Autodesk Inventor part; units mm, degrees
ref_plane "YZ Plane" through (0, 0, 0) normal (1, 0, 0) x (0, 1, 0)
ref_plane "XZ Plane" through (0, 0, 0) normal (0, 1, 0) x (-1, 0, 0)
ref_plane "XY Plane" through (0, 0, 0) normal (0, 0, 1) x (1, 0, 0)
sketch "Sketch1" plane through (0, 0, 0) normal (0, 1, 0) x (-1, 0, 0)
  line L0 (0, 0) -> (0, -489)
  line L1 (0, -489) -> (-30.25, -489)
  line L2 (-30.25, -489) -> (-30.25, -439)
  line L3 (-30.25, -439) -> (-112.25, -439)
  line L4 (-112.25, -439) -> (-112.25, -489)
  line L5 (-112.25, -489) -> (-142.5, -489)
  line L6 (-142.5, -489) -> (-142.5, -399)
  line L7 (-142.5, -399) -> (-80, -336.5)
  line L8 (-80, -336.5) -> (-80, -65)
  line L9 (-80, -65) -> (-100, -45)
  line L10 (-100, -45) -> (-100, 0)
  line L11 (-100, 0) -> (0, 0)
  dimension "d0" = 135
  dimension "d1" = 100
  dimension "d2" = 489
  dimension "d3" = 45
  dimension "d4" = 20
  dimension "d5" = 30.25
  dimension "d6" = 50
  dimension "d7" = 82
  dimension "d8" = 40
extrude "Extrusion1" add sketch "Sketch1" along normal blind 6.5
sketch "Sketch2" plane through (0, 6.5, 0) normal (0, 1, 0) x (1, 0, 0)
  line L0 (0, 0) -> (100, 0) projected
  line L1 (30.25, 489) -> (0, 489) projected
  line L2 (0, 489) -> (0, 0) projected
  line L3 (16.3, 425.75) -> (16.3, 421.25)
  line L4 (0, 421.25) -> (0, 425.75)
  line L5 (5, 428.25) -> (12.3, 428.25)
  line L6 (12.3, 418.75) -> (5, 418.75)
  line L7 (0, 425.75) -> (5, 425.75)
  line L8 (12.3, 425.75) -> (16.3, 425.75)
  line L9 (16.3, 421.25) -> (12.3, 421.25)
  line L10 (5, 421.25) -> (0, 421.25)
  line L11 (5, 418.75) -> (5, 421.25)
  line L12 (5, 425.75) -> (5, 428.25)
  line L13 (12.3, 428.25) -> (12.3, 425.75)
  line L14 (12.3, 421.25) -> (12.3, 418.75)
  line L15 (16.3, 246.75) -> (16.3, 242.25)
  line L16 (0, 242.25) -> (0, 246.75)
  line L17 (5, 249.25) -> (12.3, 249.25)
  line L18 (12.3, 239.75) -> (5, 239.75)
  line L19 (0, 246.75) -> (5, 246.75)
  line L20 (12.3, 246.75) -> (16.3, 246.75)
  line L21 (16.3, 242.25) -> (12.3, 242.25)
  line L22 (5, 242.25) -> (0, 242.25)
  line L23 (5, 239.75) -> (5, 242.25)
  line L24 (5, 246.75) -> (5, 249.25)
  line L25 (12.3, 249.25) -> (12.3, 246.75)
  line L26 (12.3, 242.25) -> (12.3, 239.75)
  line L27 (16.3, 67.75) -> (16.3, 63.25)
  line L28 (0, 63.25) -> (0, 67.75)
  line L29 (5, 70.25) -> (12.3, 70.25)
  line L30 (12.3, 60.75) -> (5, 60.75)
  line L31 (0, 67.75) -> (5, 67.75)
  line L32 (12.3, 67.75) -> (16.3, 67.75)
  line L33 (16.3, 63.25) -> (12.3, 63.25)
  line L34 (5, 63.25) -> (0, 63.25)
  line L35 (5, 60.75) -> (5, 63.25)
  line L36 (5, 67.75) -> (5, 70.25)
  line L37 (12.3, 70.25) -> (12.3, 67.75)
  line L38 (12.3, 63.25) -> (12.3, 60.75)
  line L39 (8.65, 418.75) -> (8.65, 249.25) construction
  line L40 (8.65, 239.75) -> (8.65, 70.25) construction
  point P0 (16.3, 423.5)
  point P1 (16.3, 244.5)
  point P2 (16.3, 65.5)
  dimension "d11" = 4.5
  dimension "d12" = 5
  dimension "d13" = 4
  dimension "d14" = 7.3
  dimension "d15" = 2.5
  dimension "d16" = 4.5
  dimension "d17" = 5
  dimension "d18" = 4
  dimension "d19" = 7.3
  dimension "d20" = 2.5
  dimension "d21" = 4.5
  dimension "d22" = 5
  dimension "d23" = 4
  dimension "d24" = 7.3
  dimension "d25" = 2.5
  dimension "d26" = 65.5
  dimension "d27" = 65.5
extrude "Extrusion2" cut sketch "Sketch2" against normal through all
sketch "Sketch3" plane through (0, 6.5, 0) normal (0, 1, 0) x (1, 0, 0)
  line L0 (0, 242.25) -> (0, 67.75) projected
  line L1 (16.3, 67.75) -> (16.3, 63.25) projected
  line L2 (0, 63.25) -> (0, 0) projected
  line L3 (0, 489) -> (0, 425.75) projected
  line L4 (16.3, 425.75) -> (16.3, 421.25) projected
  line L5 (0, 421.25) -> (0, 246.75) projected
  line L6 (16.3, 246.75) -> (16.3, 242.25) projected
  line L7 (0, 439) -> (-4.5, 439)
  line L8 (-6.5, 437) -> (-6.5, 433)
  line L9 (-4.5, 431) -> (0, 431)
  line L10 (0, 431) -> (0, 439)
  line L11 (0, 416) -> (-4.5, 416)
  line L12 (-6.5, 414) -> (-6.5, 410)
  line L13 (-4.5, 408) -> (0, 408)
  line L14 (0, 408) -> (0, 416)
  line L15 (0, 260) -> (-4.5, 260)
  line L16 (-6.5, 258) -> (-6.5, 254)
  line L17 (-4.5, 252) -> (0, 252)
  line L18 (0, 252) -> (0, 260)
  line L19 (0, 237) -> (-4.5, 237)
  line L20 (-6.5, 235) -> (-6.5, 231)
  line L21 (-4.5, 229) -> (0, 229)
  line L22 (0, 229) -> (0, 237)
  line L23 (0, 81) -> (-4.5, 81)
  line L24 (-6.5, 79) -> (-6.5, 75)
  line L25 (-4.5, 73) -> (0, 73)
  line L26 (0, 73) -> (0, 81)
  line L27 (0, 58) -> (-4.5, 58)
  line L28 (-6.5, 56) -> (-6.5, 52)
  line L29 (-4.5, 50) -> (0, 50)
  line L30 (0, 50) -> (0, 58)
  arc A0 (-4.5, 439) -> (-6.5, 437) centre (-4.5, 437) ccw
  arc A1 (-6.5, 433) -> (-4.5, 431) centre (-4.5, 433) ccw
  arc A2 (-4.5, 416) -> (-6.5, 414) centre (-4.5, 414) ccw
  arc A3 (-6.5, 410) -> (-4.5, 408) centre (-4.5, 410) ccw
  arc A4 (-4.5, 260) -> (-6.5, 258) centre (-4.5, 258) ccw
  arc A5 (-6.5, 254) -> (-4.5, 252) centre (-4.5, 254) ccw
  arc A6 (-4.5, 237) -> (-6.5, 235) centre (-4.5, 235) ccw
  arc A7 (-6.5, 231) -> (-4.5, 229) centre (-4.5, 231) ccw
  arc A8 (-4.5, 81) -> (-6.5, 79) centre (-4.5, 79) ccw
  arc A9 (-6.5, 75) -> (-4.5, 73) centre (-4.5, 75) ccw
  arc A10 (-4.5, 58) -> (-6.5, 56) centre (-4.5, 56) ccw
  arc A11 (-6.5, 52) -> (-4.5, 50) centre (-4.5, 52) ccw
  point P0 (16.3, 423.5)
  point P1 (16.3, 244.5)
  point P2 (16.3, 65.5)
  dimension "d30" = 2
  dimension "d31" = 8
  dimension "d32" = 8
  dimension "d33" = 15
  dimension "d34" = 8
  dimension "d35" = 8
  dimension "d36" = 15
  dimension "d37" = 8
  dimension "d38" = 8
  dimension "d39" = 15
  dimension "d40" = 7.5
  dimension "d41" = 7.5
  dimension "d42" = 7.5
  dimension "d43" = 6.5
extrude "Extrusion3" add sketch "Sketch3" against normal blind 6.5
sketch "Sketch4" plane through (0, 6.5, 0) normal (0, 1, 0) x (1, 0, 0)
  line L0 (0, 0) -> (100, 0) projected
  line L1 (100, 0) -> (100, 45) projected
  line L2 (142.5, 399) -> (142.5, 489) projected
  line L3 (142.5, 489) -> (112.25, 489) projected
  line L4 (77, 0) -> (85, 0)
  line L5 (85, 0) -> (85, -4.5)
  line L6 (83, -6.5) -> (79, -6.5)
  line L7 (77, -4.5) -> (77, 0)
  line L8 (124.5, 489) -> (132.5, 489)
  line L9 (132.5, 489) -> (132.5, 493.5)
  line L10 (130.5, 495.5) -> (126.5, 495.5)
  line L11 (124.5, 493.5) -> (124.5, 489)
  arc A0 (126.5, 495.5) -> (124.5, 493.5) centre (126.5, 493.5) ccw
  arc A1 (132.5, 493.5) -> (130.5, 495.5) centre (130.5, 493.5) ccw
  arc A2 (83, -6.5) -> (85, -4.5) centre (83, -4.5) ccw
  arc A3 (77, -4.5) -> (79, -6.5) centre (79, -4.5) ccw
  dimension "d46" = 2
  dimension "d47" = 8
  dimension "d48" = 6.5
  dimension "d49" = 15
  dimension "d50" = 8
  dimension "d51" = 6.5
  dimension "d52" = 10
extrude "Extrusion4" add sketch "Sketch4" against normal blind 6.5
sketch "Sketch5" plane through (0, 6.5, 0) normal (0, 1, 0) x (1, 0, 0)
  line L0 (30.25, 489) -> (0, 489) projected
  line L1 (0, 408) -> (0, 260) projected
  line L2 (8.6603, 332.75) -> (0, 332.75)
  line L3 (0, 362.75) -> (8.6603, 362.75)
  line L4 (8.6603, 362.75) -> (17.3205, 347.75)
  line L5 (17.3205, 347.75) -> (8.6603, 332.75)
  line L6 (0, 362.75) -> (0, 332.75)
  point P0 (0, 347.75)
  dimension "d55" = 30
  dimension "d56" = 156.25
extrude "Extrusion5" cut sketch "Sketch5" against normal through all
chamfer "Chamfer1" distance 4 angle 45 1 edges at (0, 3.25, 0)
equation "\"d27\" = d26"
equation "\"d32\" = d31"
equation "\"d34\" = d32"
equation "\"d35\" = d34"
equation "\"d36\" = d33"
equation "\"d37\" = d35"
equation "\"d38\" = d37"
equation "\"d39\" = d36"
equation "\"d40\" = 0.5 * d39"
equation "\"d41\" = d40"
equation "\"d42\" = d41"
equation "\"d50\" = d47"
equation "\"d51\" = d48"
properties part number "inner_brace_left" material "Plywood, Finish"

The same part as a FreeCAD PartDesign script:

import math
import FreeCAD as App
import Part
import Sketcher
Q = App.Units.Quantity


def edges_at(feature, points):
    """Names of the edges that pass closest to the given points."""
    edges = feature.Shape.Edges
    near = lambda p: min(range(len(edges)), key=lambda i: edges[i].distToShape(Part.Vertex(*p))[0])
    return sorted({f"Edge{near(p) + 1}" for p in points})


def add_polygon(sketch, points):
    """Adds a closed chain of lines whose ends are joined by coincident constraints."""
    first, n = sketch.GeometryCount, len(points)
    for a, b in zip(points, points[1:] + points[:1]):
        sketch.addGeometry(Part.LineSegment(App.Vector(*a, 0), App.Vector(*b, 0)), False)
    for i in range(n):
        sketch.addConstraint(Sketcher.Constraint("Coincident", first + i, 2, first + (i + 1) % n, 1))

doc = App.newDocument("Part")
body = doc.addObject("PartDesign::Body", "Body")

# Sketch on XZ plane
sketch1 = doc.addObject("Sketcher::SketchObject", "Sketch")
body.addObject(sketch1)
sketch1.AttachmentSupport = (doc.XZ_Plane, [""])
sketch1.MapMode = "FlatFace"
add_polygon(sketch1, [(0, -489), (0, 0), (100, 0), (100, -45), (80, -65), (80, -336), (142, -399), (142, -489), (112, -489), (112, -439), (30, -439), (30, -489)])  # lines 0-11
sketch1.addConstraint([
    Sketcher.Constraint("Vertical", 0),
    Sketcher.Constraint("Horizontal", 1),
    Sketcher.Constraint("Vertical", 2),
    Sketcher.Constraint("Vertical", 4),
    Sketcher.Constraint("Vertical", 6),
    Sketcher.Constraint("Horizontal", 7),
    Sketcher.Constraint("Vertical", 8),
    Sketcher.Constraint("Horizontal", 9),
    Sketcher.Constraint("Vertical", 10),
    Sketcher.Constraint("Horizontal", 11),
    Sketcher.Constraint("Coincident", 0, 2, -1, 1),
    Sketcher.Constraint("Perpendicular", 3, 5),
    Sketcher.Constraint("Horizontal", 7, 2, 10, 2),
    Sketcher.Constraint("Equal", 7, 11),
    Sketcher.Constraint("DistanceX", 1, 1, 1, 2, 100.0),
    Sketcher.Constraint("DistanceX", 9, 2, 9, 1, 82.0),
    Sketcher.Constraint("DistanceY", 0, 1, 0, 2, 489.0),
    Sketcher.Constraint("DistanceY", 2, 2, 2, 1, 45.0),
    Sketcher.Constraint("DistanceY", 8, 1, 8, 2, 50.0),
    Sketcher.Constraint("Angle", 3, Q("-135 deg")),
    Sketcher.Constraint("DistanceX", 3, 2, 2, 2, 20.0),
    Sketcher.Constraint("DistanceY", 8, 2, 5, 2, 40.0),
    Sketcher.Constraint("DistanceX", 7, 2, 7, 1, 30.25),
])
pad1 = doc.addObject("PartDesign::Pad", "Pad")
body.addObject(pad1)
pad1.Profile = sketch1
pad1.Length = 6.5
pad1.Reversed = True

# Sketch on XZ plane
sketch2 = doc.addObject("Sketcher::SketchObject", "Sketch001")
body.addObject(sketch2)
sketch2.AttachmentSupport = (doc.XZ_Plane, [""])
sketch2.MapMode = "FlatFace"
sketch2.AttachmentOffset = App.Placement(App.Vector(0, 0, -6.5), App.Rotation())
add_polygon(sketch2, [(5, -425.8), (0, -425.8), (0, -421.2), (5, -421.2), (5, -418.8), (12.3, -418.8), (12.3, -421.2), (16.3, -421.2), (16.3, -425.8), (12.3, -425.8), (12.3, -428.2), (5, -428.2)])  # lines 0-11
add_polygon(sketch2, [(5, -67.8), (0, -67.8), (0, -63.2), (5, -63.2), (5, -60.8), (12.3, -60.8), (12.3, -63.2), (16.3, -63.2), (16.3, -67.8), (12.3, -67.8), (12.3, -70.2), (5, -70.2)])  # lines 12-23
add_polygon(sketch2, [(5, -246.8), (0, -246.8), (0, -242.2), (5, -242.2), (5, -239.8), (12.3, -239.8), (12.3, -242.2), (16.3, -242.2), (16.3, -246.8), (12.3, -246.8), (12.3, -249.2), (5, -249.2)])  # lines 24-35
sketch2.addConstraint([
    Sketcher.Constraint("Horizontal", 0),
    Sketcher.Constraint("Vertical", 1),
    Sketcher.Constraint("Horizontal", 2),
    Sketcher.Constraint("Vertical", 3),
    Sketcher.Constraint("Horizontal", 4),
    Sketcher.Constraint("Vertical", 5),
    Sketcher.Constraint("Horizontal", 6),
    Sketcher.Constraint("Vertical", 7),
    Sketcher.Constraint("Horizontal", 8),
    Sketcher.Constraint("Vertical", 9),
    Sketcher.Constraint("Horizontal", 10),
    Sketcher.Constraint("Vertical", 11),
    Sketcher.Constraint("Horizontal", 12),
    Sketcher.Constraint("Vertical", 13),
    Sketcher.Constraint("Horizontal", 14),
    Sketcher.Constraint("Vertical", 15),
    Sketcher.Constraint("Horizontal", 16),
    Sketcher.Constraint("Vertical", 17),
    Sketcher.Constraint("Horizontal", 18),
    Sketcher.Constraint("Vertical", 19),
    Sketcher.Constraint("Horizontal", 20),
    Sketcher.Constraint("Vertical", 21),
    Sketcher.Constraint("Horizontal", 22),
    Sketcher.Constraint("Vertical", 23),
    Sketcher.Constraint("Horizontal", 24),
    Sketcher.Constraint("Vertical", 25),
    Sketcher.Constraint("Horizontal", 26),
    Sketcher.Constraint("Vertical", 27),
    Sketcher.Constraint("Horizontal", 28),
    Sketcher.Constraint("Vertical", 29),
    Sketcher.Constraint("Horizontal", 30),
    Sketcher.Constraint("Vertical", 31),
    Sketcher.Constraint("Horizontal", 32),
    Sketcher.Constraint("Vertical", 33),
    Sketcher.Constraint("Horizontal", 34),
    Sketcher.Constraint("Vertical", 35),
    Sketcher.Constraint("PointOnObject", 0, 2, -2),
    Sketcher.Constraint("PointOnObject", 12, 2, -2),
    Sketcher.Constraint("PointOnObject", 24, 2, -2),
    Sketcher.Constraint("Horizontal", 2, 2, 5, 2),
    Sketcher.Constraint("Horizontal", 0, 2, 7, 2),
    Sketcher.Constraint("Horizontal", 14, 2, 17, 2),
    Sketcher.Constraint("Horizontal", 12, 2, 19, 2),
    Sketcher.Constraint("Horizontal", 26, 2, 29, 2),
    Sketcher.Constraint("Horizontal", 24, 2, 31, 2),
    Sketcher.Constraint("Vertical", 5, 2, 8, 2),
    Sketcher.Constraint("Vertical", 3, 2, 10, 2),
    Sketcher.Constraint("Vertical", 11, 2, 14, 2),
    Sketcher.Constraint("Vertical", 9, 2, 16, 2),
    Sketcher.Constraint("Vertical", 7, 2, 18, 2),
    Sketcher.Constraint("Vertical", 17, 2, 20, 2),
    Sketcher.Constraint("Vertical", 15, 2, 22, 2),
    Sketcher.Constraint("Vertical", 23, 2, 26, 2),
    Sketcher.Constraint("Vertical", 21, 2, 28, 2),
    Sketcher.Constraint("Vertical", 19, 2, 30, 2),
    Sketcher.Constraint("Vertical", 29, 2, 32, 2),
    Sketcher.Constraint("Vertical", 27, 2, 34, 2),
    Sketcher.Constraint("Equal", 5, 9),
    Sketcher.Constraint("Equal", 7, 13),
    Sketcher.Constraint("Equal", 11, 15),
    Sketcher.Constraint("Equal", 17, 21),
    Sketcher.Constraint("Equal", 19, 25),
    Sketcher.Constraint("Equal", 23, 27),
    Sketcher.Constraint("Equal", 29, 33),
    Sketcher.Constraint("DistanceX", 0, 2, 0, 1, 5.0),
    Sketcher.Constraint("DistanceX", 6, 1, 6, 2, 4.0),
    Sketcher.Constraint("DistanceX", 4, 1, 4, 2, 7.3),
    Sketcher.Constraint("DistanceY", 1, 1, 1, 2, 4.5),
    Sketcher.Constraint("DistanceY", 3, 1, 3, 2, 2.5),
    Sketcher.Constraint("DistanceY", 3, 2, 12, 2, 351.0),
    Sketcher.Constraint("DistanceY", 3, 2, 24, 2, 172.0),
    Sketcher.Constraint("DistanceY", 0, 2, -1, 1, 425.75),
])
pocket1 = doc.addObject("PartDesign::Pocket", "Pocket")
body.addObject(pocket1)
pocket1.Profile = sketch2
pocket1.Type = "ThroughAll"
pocket1.Reversed = True

# Sketch on XZ plane
sketch3 = doc.addObject("Sketcher::SketchObject", "Sketch002")
body.addObject(sketch3)
sketch3.AttachmentSupport = (doc.XZ_Plane, [""])
sketch3.MapMode = "FlatFace"
sketch3.AttachmentOffset = App.Placement(App.Vector(0, 0, -6.5), App.Rotation())
sketch3.addGeometry([
    Part.LineSegment(App.Vector(0, -73, 0), App.Vector(0, -81, 0)),  # 0
    Part.LineSegment(App.Vector(0, -81, 0), App.Vector(-4.5, -81, 0)),  # 1
    Part.ArcOfCircle(Part.Circle(App.Vector(-4.5, -79, 0), App.Vector(0, 0, 1), 2), math.radians(180), math.radians(270)),  # 2
    Part.LineSegment(App.Vector(-6.5, -79, 0), App.Vector(-6.5, -75, 0)),  # 3
    Part.ArcOfCircle(Part.Circle(App.Vector(-4.5, -75, 0), App.Vector(0, 0, 1), 2), math.radians(90), math.radians(180)),  # 4
    Part.LineSegment(App.Vector(-4.5, -73, 0), App.Vector(0, -73, 0)),  # 5
    Part.LineSegment(App.Vector(0, -229, 0), App.Vector(0, -237, 0)),  # 6
    Part.LineSegment(App.Vector(0, -237, 0), App.Vector(-4.5, -237, 0)),  # 7
    Part.ArcOfCircle(Part.Circle(App.Vector(-4.5, -235, 0), App.Vector(0, 0, 1), 2), math.radians(180), math.radians(270)),  # 8
    Part.LineSegment(App.Vector(-6.5, -235, 0), App.Vector(-6.5, -231, 0)),  # 9
    Part.ArcOfCircle(Part.Circle(App.Vector(-4.5, -231, 0), App.Vector(0, 0, 1), 2), math.radians(90), math.radians(180)),  # 10
    Part.LineSegment(App.Vector(-4.5, -229, 0), App.Vector(0, -229, 0)),  # 11
    Part.LineSegment(App.Vector(0, -50, 0), App.Vector(0, -58, 0)),  # 12
    Part.LineSegment(App.Vector(0, -58, 0), App.Vector(-4.5, -58, 0)),  # 13
    Part.ArcOfCircle(Part.Circle(App.Vector(-4.5, -56, 0), App.Vector(0, 0, 1), 2), math.radians(180), math.radians(270)),  # 14
    Part.LineSegment(App.Vector(-6.5, -56, 0), App.Vector(-6.5, -52, 0)),  # 15
    Part.ArcOfCircle(Part.Circle(App.Vector(-4.5, -52, 0), App.Vector(0, 0, 1), 2), math.radians(90), math.radians(180)),  # 16
    Part.LineSegment(App.Vector(-4.5, -50, 0), App.Vector(0, -50, 0)),  # 17
    Part.LineSegment(App.Vector(0, -431, 0), App.Vector(0, -439, 0)),  # 18
    Part.LineSegment(App.Vector(0, -439, 0), App.Vector(-4.5, -439, 0)),  # 19
    Part.ArcOfCircle(Part.Circle(App.Vector(-4.5, -437, 0), App.Vector(0, 0, 1), 2), math.radians(180), math.radians(270)),  # 20
    Part.LineSegment(App.Vector(-6.5, -437, 0), App.Vector(-6.5, -433, 0)),  # 21
    Part.ArcOfCircle(Part.Circle(App.Vector(-4.5, -433, 0), App.Vector(0, 0, 1), 2), math.radians(90), math.radians(180)),  # 22
    Part.LineSegment(App.Vector(-4.5, -431, 0), App.Vector(0, -431, 0)),  # 23
    Part.LineSegment(App.Vector(0, -252, 0), App.Vector(0, -260, 0)),  # 24
    Part.LineSegment(App.Vector(0, -260, 0), App.Vector(-4.5, -260, 0)),  # 25
    Part.ArcOfCircle(Part.Circle(App.Vector(-4.5, -258, 0), App.Vector(0, 0, 1), 2), math.radians(180), math.radians(270)),  # 26
    Part.LineSegment(App.Vector(-6.5, -258, 0), App.Vector(-6.5, -254, 0)),  # 27
    Part.ArcOfCircle(Part.Circle(App.Vector(-4.5, -254, 0), App.Vector(0, 0, 1), 2), math.radians(90), math.radians(180)),  # 28
    Part.LineSegment(App.Vector(-4.5, -252, 0), App.Vector(0, -252, 0)),  # 29
    Part.LineSegment(App.Vector(0, -408, 0), App.Vector(0, -416, 0)),  # 30
    Part.LineSegment(App.Vector(0, -416, 0), App.Vector(-4.5, -416, 0)),  # 31
    Part.ArcOfCircle(Part.Circle(App.Vector(-4.5, -414, 0), App.Vector(0, 0, 1), 2), math.radians(180), math.radians(270)),  # 32
    Part.LineSegment(App.Vector(-6.5, -414, 0), App.Vector(-6.5, -410, 0)),  # 33
    Part.ArcOfCircle(Part.Circle(App.Vector(-4.5, -410, 0), App.Vector(0, 0, 1), 2), math.radians(90), math.radians(180)),  # 34
    Part.LineSegment(App.Vector(-4.5, -408, 0), App.Vector(0, -408, 0)),  # 35
], False)
sketch3.addConstraint([
    Sketcher.Constraint("Coincident", 0, 2, 1, 1),
    Sketcher.Constraint("Tangent", 1, 2, 2, 2),
    Sketcher.Constraint("Tangent", 2, 1, 3, 1),
    Sketcher.Constraint("Tangent", 3, 2, 4, 2),
    Sketcher.Constraint("Tangent", 4, 1, 5, 1),
    Sketcher.Constraint("Coincident", 5, 2, 0, 1),
    Sketcher.Constraint("Coincident", 6, 2, 7, 1),
    Sketcher.Constraint("Tangent", 7, 2, 8, 2),
    Sketcher.Constraint("Tangent", 8, 1, 9, 1),
    Sketcher.Constraint("Tangent", 9, 2, 10, 2),
    Sketcher.Constraint("Tangent", 10, 1, 11, 1),
    Sketcher.Constraint("Coincident", 11, 2, 6, 1),
    Sketcher.Constraint("Coincident", 12, 2, 13, 1),
    Sketcher.Constraint("Tangent", 13, 2, 14, 2),
    Sketcher.Constraint("Tangent", 14, 1, 15, 1),
    Sketcher.Constraint("Tangent", 15, 2, 16, 2),
    Sketcher.Constraint("Tangent", 16, 1, 17, 1),
    Sketcher.Constraint("Coincident", 17, 2, 12, 1),
    Sketcher.Constraint("Coincident", 18, 2, 19, 1),
    Sketcher.Constraint("Tangent", 19, 2, 20, 2),
    Sketcher.Constraint("Tangent", 20, 1, 21, 1),
    Sketcher.Constraint("Tangent", 21, 2, 22, 2),
    Sketcher.Constraint("Tangent", 22, 1, 23, 1),
    Sketcher.Constraint("Coincident", 23, 2, 18, 1),
    Sketcher.Constraint("Coincident", 24, 2, 25, 1),
    Sketcher.Constraint("Tangent", 25, 2, 26, 2),
    Sketcher.Constraint("Tangent", 26, 1, 27, 1),
    Sketcher.Constraint("Tangent", 27, 2, 28, 2),
    Sketcher.Constraint("Tangent", 28, 1, 29, 1),
    Sketcher.Constraint("Coincident", 29, 2, 24, 1),
    Sketcher.Constraint("Coincident", 30, 2, 31, 1),
    Sketcher.Constraint("Tangent", 31, 2, 32, 2),
    Sketcher.Constraint("Tangent", 32, 1, 33, 1),
    Sketcher.Constraint("Tangent", 33, 2, 34, 2),
    Sketcher.Constraint("Tangent", 34, 1, 35, 1),
    Sketcher.Constraint("Coincident", 35, 2, 30, 1),
    Sketcher.Constraint("Vertical", 0),
    Sketcher.Constraint("Horizontal", 1),
    Sketcher.Constraint("Vertical", 3),
    Sketcher.Constraint("Horizontal", 5),
    Sketcher.Constraint("Vertical", 6),
    Sketcher.Constraint("Horizontal", 7),
    Sketcher.Constraint("Vertical", 9),
    Sketcher.Constraint("Horizontal", 11),
    Sketcher.Constraint("Vertical", 12),
    Sketcher.Constraint("Horizontal", 13),
    Sketcher.Constraint("Vertical", 15),
    Sketcher.Constraint("Horizontal", 17),
    Sketcher.Constraint("Vertical", 18),
    Sketcher.Constraint("Horizontal", 19),
    Sketcher.Constraint("Vertical", 21),
    Sketcher.Constraint("Horizontal", 23),
    Sketcher.Constraint("Vertical", 24),
    Sketcher.Constraint("Horizontal", 25),
    Sketcher.Constraint("Vertical", 27),
    Sketcher.Constraint("Horizontal", 29),
    Sketcher.Constraint("Vertical", 30),
    Sketcher.Constraint("Horizontal", 31),
    Sketcher.Constraint("Vertical", 33),
    Sketcher.Constraint("Horizontal", 35),
    Sketcher.Constraint("Equal", 2, 4),
    Sketcher.Constraint("Equal", 4, 8),
    Sketcher.Constraint("Equal", 8, 10),
    Sketcher.Constraint("Equal", 10, 14),
    Sketcher.Constraint("Equal", 14, 16),
    Sketcher.Constraint("Equal", 16, 20),
    Sketcher.Constraint("Equal", 20, 22),
    Sketcher.Constraint("Equal", 22, 26),
    Sketcher.Constraint("Equal", 26, 28),
    Sketcher.Constraint("Equal", 28, 32),
    Sketcher.Constraint("Equal", 32, 34),
    Sketcher.Constraint("PointOnObject", 0, 2, -2),
    Sketcher.Constraint("PointOnObject", 6, 2, -2),
    Sketcher.Constraint("PointOnObject", 12, 2, -2),
    Sketcher.Constraint("PointOnObject", 18, 2, -2),
    Sketcher.Constraint("PointOnObject", 24, 2, -2),
    Sketcher.Constraint("PointOnObject", 30, 2, -2),
    Sketcher.Constraint("Vertical", 4, 3, 8, 3),
    Sketcher.Constraint("Vertical", 10, 3, 14, 3),
    Sketcher.Constraint("Vertical", 16, 3, 20, 3),
    Sketcher.Constraint("Vertical", 22, 3, 26, 3),
    Sketcher.Constraint("Vertical", 28, 3, 32, 3),
    Sketcher.Constraint("Equal", 0, 6),
    Sketcher.Constraint("Equal", 6, 12),
    Sketcher.Constraint("Equal", 12, 18),
    Sketcher.Constraint("Equal", 18, 24),
    Sketcher.Constraint("Equal", 24, 30),
    Sketcher.Constraint("Radius", 2, 2.0),
    Sketcher.Constraint("DistanceY", 0, 2, 0, 1, 8.0),
    Sketcher.Constraint("DistanceY", 5, 2, 12, 2, 15.0),
    Sketcher.Constraint("DistanceY", 23, 2, 30, 2, 15.0),
    Sketcher.Constraint("DistanceX", 2, 1, -1, 1, 6.5),
    Sketcher.Constraint("DistanceY", 2, 3, -1, 1, 79.0),
    Sketcher.Constraint("DistanceY", 8, 3, -1, 1, 235.0),
    Sketcher.Constraint("DistanceY", 20, 3, -1, 1, 437.0),
    Sketcher.Constraint("DistanceY", 26, 3, -1, 1, 258.0),
])
pad2 = doc.addObject("PartDesign::Pad", "Pad001")
body.addObject(pad2)
pad2.Profile = sketch3
pad2.Length = 6.5

# Sketch on XZ plane
sketch4 = doc.addObject("Sketcher::SketchObject", "Sketch003")
body.addObject(sketch4)
sketch4.AttachmentSupport = (doc.XZ_Plane, [""])
sketch4.MapMode = "FlatFace"
sketch4.AttachmentOffset = App.Placement(App.Vector(0, 0, -6.5), App.Rotation())
sketch4.addGeometry([
    Part.LineSegment(App.Vector(85, 0, 0), App.Vector(77, 0, 0)),  # 0
    Part.LineSegment(App.Vector(77, 0, 0), App.Vector(77, 4.5, 0)),  # 1
    Part.ArcOfCircle(Part.Circle(App.Vector(79, 4.5, 0), App.Vector(0, 0, 1), 2), math.radians(90), math.radians(180)),  # 2
    Part.LineSegment(App.Vector(79, 6.5, 0), App.Vector(83, 6.5, 0)),  # 3
    Part.ArcOfCircle(Part.Circle(App.Vector(83, 4.5, 0), App.Vector(0, 0, 1), 2), math.radians(0), math.radians(90)),  # 4
    Part.LineSegment(App.Vector(85, 4.5, 0), App.Vector(85, 0, 0)),  # 5
    Part.LineSegment(App.Vector(124.5, -489, 0), App.Vector(132.5, -489, 0)),  # 6
    Part.LineSegment(App.Vector(132.5, -489, 0), App.Vector(132.5, -493.5, 0)),  # 7
    Part.ArcOfCircle(Part.Circle(App.Vector(130.5, -493.5, 0), App.Vector(0, 0, 1), 2), math.radians(-90), math.radians(0)),  # 8
    Part.LineSegment(App.Vector(130.5, -495.5, 0), App.Vector(126.5, -495.5, 0)),  # 9
    Part.ArcOfCircle(Part.Circle(App.Vector(126.5, -493.5, 0), App.Vector(0, 0, 1), 2), math.radians(180), math.radians(270)),  # 10
    Part.LineSegment(App.Vector(124.5, -493.5, 0), App.Vector(124.5, -489, 0)),  # 11
], False)
sketch4.addConstraint([
    Sketcher.Constraint("Coincident", 0, 2, 1, 1),
    Sketcher.Constraint("Tangent", 1, 2, 2, 2),
    Sketcher.Constraint("Tangent", 2, 1, 3, 1),
    Sketcher.Constraint("Tangent", 3, 2, 4, 2),
    Sketcher.Constraint("Tangent", 4, 1, 5, 1),
    Sketcher.Constraint("Coincident", 5, 2, 0, 1),
    Sketcher.Constraint("Coincident", 6, 2, 7, 1),
    Sketcher.Constraint("Tangent", 7, 2, 8, 2),
    Sketcher.Constraint("Tangent", 8, 1, 9, 1),
    Sketcher.Constraint("Tangent", 9, 2, 10, 2),
    Sketcher.Constraint("Tangent", 10, 1, 11, 1),
    Sketcher.Constraint("Coincident", 11, 2, 6, 1),
    Sketcher.Constraint("Horizontal", 0),
    Sketcher.Constraint("Vertical", 1),
    Sketcher.Constraint("Horizontal", 3),
    Sketcher.Constraint("Vertical", 5),
    Sketcher.Constraint("Horizontal", 6),
    Sketcher.Constraint("Vertical", 7),
    Sketcher.Constraint("Horizontal", 9),
    Sketcher.Constraint("Vertical", 11),
    Sketcher.Constraint("Equal", 2, 4),
    Sketcher.Constraint("Equal", 4, 8),
    Sketcher.Constraint("Equal", 8, 10),
    Sketcher.Constraint("PointOnObject", 0, 2, -1),
    Sketcher.Constraint("Equal", 0, 6),
    Sketcher.Constraint("Equal", 5, 7),
    Sketcher.Constraint("Radius", 2, 2.0),
    Sketcher.Constraint("DistanceX", 0, 2, 0, 1, 8.0),
    Sketcher.Constraint("DistanceY", -1, 1, 2, 1, 6.5),
    Sketcher.Constraint("DistanceX", -1, 1, 2, 3, 79.0),
    Sketcher.Constraint("DistanceY", 6, 2, -1, 1, 489.0),
    Sketcher.Constraint("DistanceX", -1, 1, 8, 3, 130.5),
])
pad3 = doc.addObject("PartDesign::Pad", "Pad002")
body.addObject(pad3)
pad3.Profile = sketch4
pad3.Length = 6.5

# Sketch on XZ plane
sketch5 = doc.addObject("Sketcher::SketchObject", "Sketch004")
body.addObject(sketch5)
sketch5.AttachmentSupport = (doc.XZ_Plane, [""])
sketch5.MapMode = "FlatFace"
sketch5.AttachmentOffset = App.Placement(App.Vector(0, 0, -6.5), App.Rotation())
add_polygon(sketch5, [(9, -363), (0, -363), (0, -333), (9, -333), (17, -348)])  # lines 0-4
sketch5.addConstraint([
    Sketcher.Constraint("Horizontal", 0),
    Sketcher.Constraint("Vertical", 1),
    Sketcher.Constraint("Horizontal", 2),
    Sketcher.Constraint("PointOnObject", 0, 2, -2),
    Sketcher.Constraint("Vertical", 2, 2, 4, 2),
    Sketcher.Constraint("Equal", 3, 4),
    Sketcher.Constraint("DistanceY", 1, 1, 1, 2, 30.0),
    Sketcher.Constraint("Angle", 3, Q("-60.0002 deg")),
    Sketcher.Constraint("DistanceY", 0, 2, -1, 1, 362.75),
    Sketcher.Constraint("DistanceX", 0, 2, 0, 1, 8.6603),
])
pocket2 = doc.addObject("PartDesign::Pocket", "Pocket001")
body.addObject(pocket2)
pocket2.Profile = sketch5
pocket2.Type = "ThroughAll"
pocket2.Reversed = True
doc.recompute()

chamfer = doc.addObject("PartDesign::Chamfer", "Chamfer")
body.addObject(chamfer)
chamfer.Base = (pocket2, edges_at(pocket2, [(0, 3.25, 0)]))
chamfer.Size = 4

doc.recompute()
